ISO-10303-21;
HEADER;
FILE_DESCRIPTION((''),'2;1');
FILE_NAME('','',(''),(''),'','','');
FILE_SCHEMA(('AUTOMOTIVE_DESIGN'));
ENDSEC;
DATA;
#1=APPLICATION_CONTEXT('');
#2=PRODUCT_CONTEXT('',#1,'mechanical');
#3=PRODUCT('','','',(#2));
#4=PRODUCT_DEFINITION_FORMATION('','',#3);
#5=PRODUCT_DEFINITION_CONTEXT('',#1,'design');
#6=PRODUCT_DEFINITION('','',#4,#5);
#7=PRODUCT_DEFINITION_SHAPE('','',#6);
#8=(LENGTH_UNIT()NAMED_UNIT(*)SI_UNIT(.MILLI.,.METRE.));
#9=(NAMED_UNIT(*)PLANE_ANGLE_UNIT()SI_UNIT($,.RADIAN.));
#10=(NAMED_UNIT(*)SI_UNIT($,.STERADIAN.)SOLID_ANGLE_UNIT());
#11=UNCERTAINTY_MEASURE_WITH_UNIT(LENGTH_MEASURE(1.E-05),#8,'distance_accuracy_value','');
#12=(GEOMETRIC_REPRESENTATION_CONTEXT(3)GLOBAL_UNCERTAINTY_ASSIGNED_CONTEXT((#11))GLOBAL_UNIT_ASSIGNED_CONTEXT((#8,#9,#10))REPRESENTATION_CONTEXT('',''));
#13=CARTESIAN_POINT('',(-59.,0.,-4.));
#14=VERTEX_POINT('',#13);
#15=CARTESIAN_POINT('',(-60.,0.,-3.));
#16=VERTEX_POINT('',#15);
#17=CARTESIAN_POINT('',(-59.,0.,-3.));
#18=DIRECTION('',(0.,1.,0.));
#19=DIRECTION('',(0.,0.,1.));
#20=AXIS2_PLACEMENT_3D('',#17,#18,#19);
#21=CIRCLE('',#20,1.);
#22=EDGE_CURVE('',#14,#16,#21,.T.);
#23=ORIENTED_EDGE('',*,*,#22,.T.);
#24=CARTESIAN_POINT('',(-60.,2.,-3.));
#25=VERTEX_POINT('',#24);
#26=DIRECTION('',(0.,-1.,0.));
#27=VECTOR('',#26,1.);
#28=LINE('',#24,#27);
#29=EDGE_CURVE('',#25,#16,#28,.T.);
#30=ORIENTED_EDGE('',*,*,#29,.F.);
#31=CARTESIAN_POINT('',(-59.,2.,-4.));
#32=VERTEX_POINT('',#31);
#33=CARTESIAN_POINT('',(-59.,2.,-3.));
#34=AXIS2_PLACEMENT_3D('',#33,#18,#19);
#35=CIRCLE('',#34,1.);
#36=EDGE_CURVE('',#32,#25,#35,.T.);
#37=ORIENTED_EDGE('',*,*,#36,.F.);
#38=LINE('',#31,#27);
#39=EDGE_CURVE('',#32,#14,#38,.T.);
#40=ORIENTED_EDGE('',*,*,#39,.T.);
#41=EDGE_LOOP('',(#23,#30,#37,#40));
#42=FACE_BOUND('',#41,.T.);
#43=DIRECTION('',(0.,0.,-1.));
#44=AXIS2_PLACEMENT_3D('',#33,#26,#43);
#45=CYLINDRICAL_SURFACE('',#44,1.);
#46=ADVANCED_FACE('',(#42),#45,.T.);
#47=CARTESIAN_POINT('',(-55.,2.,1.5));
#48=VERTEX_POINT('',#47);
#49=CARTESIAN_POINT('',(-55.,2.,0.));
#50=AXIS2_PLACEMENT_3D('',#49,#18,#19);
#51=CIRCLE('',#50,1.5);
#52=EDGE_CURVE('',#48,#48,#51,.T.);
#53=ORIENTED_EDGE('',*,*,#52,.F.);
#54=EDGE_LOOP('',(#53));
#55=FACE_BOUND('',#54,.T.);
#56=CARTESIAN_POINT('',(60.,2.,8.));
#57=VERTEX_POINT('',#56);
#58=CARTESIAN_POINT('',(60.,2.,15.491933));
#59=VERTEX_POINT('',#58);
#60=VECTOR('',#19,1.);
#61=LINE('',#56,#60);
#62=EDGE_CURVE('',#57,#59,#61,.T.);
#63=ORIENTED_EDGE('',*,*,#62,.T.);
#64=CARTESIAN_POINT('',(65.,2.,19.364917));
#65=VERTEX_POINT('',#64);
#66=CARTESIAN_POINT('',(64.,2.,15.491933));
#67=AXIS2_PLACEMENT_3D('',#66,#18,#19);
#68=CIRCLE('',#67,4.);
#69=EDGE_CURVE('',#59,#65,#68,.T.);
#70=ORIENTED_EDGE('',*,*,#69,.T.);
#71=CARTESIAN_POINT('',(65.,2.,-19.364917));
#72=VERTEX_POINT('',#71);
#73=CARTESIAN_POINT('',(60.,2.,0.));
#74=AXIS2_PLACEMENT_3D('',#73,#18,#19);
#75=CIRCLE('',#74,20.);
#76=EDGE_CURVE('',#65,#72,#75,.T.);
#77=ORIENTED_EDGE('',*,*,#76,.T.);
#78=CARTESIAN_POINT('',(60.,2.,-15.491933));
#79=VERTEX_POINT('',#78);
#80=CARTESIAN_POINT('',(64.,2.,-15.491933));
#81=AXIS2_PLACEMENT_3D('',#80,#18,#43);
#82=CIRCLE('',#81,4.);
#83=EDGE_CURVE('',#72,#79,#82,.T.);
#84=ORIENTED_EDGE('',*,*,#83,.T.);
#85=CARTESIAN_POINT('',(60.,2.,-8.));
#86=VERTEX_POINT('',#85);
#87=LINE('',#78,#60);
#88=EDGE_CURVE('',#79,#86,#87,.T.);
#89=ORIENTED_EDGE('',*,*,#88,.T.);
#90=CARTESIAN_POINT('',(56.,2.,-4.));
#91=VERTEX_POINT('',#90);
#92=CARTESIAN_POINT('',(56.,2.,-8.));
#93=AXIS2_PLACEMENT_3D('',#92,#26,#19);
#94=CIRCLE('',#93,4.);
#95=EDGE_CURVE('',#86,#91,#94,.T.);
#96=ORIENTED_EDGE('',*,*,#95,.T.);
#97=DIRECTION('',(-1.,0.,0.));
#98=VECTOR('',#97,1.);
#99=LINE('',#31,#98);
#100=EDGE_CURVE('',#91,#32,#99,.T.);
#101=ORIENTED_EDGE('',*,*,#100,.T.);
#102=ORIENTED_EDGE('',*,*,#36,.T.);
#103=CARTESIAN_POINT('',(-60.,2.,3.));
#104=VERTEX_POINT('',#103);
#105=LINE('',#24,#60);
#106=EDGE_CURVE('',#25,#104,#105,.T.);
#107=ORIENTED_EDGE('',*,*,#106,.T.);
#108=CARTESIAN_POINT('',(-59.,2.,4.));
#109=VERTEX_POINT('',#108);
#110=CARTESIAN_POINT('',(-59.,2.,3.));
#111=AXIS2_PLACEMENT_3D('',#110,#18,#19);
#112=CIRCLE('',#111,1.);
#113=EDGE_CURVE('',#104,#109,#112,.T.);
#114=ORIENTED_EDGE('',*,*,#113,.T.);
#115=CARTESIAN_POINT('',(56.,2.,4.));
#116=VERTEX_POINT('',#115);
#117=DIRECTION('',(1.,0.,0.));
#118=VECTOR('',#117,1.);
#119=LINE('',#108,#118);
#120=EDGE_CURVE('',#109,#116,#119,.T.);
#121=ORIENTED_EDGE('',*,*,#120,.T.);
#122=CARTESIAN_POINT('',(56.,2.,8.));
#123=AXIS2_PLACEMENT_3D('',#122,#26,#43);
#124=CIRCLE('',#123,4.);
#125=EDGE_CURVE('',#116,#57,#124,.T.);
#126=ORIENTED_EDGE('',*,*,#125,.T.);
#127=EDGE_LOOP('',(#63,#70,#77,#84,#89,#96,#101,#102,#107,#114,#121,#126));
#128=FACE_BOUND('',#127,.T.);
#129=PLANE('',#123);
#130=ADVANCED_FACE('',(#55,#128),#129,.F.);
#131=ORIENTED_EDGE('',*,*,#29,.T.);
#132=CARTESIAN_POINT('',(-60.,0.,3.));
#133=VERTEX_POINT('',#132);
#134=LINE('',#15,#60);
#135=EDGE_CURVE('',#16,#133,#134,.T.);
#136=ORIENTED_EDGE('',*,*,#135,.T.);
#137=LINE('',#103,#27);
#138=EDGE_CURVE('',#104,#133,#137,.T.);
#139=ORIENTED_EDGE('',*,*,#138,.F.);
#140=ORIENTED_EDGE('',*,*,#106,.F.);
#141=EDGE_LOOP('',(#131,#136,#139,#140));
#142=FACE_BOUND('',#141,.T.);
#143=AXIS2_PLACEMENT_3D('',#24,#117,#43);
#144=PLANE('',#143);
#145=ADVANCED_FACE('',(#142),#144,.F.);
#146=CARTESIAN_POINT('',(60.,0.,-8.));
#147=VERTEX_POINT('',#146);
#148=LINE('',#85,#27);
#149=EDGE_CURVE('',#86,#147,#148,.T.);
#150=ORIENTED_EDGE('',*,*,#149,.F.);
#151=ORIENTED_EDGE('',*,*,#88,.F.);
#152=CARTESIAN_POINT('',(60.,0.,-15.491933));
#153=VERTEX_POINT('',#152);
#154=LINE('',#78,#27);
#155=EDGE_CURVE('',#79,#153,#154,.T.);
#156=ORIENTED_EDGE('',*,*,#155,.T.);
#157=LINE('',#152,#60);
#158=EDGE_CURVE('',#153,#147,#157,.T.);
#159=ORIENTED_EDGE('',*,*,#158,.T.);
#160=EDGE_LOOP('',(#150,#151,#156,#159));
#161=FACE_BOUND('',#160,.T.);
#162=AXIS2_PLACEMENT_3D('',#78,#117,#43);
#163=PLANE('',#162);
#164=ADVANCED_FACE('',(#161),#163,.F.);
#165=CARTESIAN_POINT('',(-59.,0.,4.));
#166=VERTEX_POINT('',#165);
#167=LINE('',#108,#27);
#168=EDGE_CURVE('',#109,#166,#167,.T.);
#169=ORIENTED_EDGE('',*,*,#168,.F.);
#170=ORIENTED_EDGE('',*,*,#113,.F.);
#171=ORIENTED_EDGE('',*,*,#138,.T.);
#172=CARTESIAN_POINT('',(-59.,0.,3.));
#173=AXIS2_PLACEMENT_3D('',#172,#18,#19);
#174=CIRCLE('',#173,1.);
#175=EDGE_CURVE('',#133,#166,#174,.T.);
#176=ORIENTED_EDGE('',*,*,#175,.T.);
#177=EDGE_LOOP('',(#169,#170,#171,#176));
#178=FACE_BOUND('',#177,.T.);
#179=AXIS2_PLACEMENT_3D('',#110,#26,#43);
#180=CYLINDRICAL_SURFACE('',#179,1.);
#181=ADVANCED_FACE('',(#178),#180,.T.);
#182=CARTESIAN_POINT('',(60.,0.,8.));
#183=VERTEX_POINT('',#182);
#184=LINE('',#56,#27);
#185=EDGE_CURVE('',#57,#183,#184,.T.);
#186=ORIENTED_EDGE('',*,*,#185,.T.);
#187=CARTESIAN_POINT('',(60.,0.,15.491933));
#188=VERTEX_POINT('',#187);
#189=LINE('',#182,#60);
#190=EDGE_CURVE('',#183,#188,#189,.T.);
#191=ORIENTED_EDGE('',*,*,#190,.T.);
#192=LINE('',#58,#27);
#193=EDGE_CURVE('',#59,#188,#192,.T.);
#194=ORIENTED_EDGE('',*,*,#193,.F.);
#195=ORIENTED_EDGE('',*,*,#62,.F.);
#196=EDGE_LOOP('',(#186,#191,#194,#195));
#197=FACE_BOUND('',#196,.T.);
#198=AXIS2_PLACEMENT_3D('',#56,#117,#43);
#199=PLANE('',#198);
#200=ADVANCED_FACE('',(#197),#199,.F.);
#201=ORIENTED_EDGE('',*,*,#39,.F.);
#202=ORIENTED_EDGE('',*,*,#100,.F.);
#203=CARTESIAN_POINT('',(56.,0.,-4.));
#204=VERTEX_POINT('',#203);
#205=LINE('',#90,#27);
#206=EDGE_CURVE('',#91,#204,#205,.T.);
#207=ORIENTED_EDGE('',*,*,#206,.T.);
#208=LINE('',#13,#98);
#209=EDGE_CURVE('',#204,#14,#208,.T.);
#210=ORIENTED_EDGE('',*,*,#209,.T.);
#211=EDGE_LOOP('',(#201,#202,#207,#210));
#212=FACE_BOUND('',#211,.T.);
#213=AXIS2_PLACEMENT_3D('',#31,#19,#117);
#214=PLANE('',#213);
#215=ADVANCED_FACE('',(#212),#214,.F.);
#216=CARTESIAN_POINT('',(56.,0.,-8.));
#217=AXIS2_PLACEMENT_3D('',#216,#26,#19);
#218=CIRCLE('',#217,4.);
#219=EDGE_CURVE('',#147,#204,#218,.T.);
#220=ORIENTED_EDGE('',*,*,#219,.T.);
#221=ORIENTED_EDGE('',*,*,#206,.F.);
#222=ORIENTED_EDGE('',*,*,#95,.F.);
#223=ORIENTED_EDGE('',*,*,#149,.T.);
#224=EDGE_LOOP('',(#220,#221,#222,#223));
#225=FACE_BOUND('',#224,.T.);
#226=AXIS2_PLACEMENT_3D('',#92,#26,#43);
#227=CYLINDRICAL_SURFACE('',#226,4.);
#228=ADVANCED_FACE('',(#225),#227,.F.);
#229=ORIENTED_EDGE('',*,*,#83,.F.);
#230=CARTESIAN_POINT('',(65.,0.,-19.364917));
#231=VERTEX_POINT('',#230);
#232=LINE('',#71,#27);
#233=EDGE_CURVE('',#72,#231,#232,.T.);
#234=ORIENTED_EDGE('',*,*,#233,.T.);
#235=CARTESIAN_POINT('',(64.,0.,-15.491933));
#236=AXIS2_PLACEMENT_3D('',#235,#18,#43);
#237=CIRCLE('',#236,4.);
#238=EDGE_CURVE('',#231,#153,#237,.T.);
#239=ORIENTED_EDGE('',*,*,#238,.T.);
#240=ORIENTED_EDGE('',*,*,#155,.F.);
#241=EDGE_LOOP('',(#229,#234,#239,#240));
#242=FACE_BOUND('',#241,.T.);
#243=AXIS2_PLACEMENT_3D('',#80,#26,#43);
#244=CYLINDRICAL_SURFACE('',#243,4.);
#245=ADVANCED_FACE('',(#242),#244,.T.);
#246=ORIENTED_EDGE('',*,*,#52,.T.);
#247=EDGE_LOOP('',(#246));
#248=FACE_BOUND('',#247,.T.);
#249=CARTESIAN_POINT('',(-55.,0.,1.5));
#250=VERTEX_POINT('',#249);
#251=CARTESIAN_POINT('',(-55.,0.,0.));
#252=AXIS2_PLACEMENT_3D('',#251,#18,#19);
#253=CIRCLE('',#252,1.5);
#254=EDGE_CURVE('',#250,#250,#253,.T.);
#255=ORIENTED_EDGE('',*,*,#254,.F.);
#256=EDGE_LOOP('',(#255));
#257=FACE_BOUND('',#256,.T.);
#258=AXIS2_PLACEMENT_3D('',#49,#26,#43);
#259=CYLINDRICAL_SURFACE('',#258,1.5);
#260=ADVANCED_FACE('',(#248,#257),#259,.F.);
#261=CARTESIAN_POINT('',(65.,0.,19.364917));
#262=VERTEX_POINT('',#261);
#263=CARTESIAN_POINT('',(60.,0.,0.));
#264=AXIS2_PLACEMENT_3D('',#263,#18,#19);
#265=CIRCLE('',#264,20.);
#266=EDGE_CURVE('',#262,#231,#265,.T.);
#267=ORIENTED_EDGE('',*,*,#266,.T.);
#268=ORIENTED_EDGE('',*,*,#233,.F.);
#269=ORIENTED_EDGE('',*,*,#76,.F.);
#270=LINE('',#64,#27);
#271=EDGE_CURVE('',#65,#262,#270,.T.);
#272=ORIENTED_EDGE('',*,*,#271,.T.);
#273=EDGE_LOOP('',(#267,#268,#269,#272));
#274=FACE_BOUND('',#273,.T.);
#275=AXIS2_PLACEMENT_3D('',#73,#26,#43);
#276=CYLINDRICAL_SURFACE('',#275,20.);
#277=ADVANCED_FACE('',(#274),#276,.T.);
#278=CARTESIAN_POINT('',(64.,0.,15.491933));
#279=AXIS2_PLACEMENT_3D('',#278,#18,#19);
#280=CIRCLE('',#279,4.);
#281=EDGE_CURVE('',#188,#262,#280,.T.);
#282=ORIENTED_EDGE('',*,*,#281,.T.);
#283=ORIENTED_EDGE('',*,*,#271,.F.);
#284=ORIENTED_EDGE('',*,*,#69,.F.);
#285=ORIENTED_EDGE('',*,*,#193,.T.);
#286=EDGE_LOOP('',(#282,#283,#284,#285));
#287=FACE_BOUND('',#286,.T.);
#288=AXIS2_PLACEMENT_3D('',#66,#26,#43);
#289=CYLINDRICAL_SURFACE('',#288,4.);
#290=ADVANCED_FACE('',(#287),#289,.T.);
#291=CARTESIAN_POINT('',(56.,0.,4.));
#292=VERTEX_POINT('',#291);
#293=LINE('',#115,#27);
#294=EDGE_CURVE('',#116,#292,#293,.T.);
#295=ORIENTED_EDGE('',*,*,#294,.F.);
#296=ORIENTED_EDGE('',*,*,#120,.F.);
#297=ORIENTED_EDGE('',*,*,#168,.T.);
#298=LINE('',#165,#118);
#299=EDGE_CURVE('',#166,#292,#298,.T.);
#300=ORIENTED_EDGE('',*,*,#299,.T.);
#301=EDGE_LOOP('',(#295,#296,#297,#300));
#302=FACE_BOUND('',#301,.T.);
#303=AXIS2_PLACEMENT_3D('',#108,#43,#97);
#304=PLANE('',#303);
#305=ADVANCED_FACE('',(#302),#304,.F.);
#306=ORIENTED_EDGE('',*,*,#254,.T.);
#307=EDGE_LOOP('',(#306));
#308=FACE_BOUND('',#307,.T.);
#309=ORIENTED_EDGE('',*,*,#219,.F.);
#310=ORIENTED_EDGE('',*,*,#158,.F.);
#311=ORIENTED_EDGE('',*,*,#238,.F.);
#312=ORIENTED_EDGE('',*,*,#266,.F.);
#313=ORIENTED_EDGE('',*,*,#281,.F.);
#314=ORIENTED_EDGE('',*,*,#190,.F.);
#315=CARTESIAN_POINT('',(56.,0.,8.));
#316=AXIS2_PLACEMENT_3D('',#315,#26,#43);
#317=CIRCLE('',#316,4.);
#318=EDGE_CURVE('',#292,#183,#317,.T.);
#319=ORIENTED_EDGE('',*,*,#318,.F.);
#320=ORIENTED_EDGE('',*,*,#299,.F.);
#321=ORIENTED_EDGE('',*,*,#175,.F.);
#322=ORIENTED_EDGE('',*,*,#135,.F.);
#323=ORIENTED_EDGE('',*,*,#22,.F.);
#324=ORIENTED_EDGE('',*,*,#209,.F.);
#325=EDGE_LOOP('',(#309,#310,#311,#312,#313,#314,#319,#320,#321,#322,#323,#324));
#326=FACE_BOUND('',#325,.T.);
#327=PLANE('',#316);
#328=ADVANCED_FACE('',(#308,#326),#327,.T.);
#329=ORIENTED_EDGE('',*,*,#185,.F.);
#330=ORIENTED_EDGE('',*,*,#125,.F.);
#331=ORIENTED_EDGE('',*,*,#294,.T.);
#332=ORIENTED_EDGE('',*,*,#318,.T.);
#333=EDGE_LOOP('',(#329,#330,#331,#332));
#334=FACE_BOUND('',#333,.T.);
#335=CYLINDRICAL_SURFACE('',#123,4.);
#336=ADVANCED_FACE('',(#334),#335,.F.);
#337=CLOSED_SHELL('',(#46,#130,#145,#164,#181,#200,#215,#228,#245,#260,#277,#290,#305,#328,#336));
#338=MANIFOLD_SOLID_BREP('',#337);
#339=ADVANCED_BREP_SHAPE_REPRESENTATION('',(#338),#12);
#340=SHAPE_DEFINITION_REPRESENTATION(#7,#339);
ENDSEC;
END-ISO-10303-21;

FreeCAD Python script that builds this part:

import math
import FreeCAD as App
import Part
import Sketcher

doc = App.newDocument("Part")
params = doc.addObject("Spreadsheet::Sheet", "Params")
for row, (alias, value) in enumerate([
    ("sketch1_diameter", "3 mm"),
    ("sketch1_radius", "4 mm"),
    ("sketch1_radius2", "1 mm"),
    ("sketch1_radius3", "20 mm"),
    ("sketch1_width", "115 mm"),
    ("pad1_length", "2 mm"),
], start=1):
    params.set(f"A{row}", alias)
    params.set(f"B{row}", "=" + value)
    params.setAlias(f"B{row}", alias)

body = doc.addObject("PartDesign::Body", "Body")

# Sketch on XZ plane
sketch1 = doc.addObject("Sketcher::SketchObject", "Sketch")
body.addObject(sketch1)
sketch1.AttachmentSupport = (doc.XZ_Plane, [""])
sketch1.MapMode = "FlatFace"
sketch1.addGeometry(Part.LineSegment(App.Vector(60, -15.5, 0), App.Vector(60, -8, 0)), False)
sketch1.addGeometry(Part.ArcOfCircle(Part.Circle(App.Vector(56, -8, 0), App.Vector(0, 0, 1), 4), math.radians(0), math.radians(90)), False)
sketch1.addGeometry(Part.LineSegment(App.Vector(56, -4, 0), App.Vector(-59, -4, 0)), False)
sketch1.addGeometry(Part.ArcOfCircle(Part.Circle(App.Vector(-59, -3, 0), App.Vector(0, 0, 1), 1), math.radians(-180), math.radians(-90)), False)
sketch1.addGeometry(Part.LineSegment(App.Vector(-60, -3, 0), App.Vector(-60, 3, 0)), False)
sketch1.addGeometry(Part.ArcOfCircle(Part.Circle(App.Vector(-59, 3, 0), App.Vector(0, 0, 1), 1), math.radians(90), math.radians(180)), False)
sketch1.addGeometry(Part.LineSegment(App.Vector(-59, 4, 0), App.Vector(56, 4, 0)), False)
sketch1.addGeometry(Part.ArcOfCircle(Part.Circle(App.Vector(56, 8, 0), App.Vector(0, 0, 1), 4), math.radians(-90), math.radians(0)), False)
sketch1.addGeometry(Part.LineSegment(App.Vector(60, 8, 0), App.Vector(60, 15.5, 0)), False)
sketch1.addGeometry(Part.ArcOfCircle(Part.Circle(App.Vector(64, 15.5, 0), App.Vector(0, 0, 1), 4), math.radians(76), math.radians(180)), False)
sketch1.addGeometry(Part.ArcOfCircle(Part.Circle(App.Vector(60, 0, 0), App.Vector(0, 0, 1), 20), math.radians(-76), math.radians(76)), False)
sketch1.addGeometry(Part.ArcOfCircle(Part.Circle(App.Vector(64, -15.5, 0), App.Vector(0, 0, 1), 4), math.radians(180), math.radians(284)), False)
sketch1.addGeometry(Part.Circle(App.Vector(-55, 0, 0), App.Vector(0, 0, 1), 1.5), False)
sketch1.addConstraint(Sketcher.Constraint("Tangent", 0, 2, 1, 1))
sketch1.addConstraint(Sketcher.Constraint("Tangent", 1, 2, 2, 1))
sketch1.addConstraint(Sketcher.Constraint("Tangent", 2, 2, 3, 2))
sketch1.addConstraint(Sketcher.Constraint("Tangent", 3, 1, 4, 1))
sketch1.addConstraint(Sketcher.Constraint("Tangent", 4, 2, 5, 2))
sketch1.addConstraint(Sketcher.Constraint("Tangent", 5, 1, 6, 1))
sketch1.addConstraint(Sketcher.Constraint("Tangent", 6, 2, 7, 1))
sketch1.addConstraint(Sketcher.Constraint("Tangent", 7, 2, 8, 1))
sketch1.addConstraint(Sketcher.Constraint("Tangent", 8, 2, 9, 2))
sketch1.addConstraint(Sketcher.Constraint("Tangent", 9, 1, 10, 2))
sketch1.addConstraint(Sketcher.Constraint("Tangent", 10, 1, 11, 2))
sketch1.addConstraint(Sketcher.Constraint("Tangent", 11, 1, 0, 1))
sketch1.addConstraint(Sketcher.Constraint("Vertical", 0))
sketch1.addConstraint(Sketcher.Constraint("Horizontal", 2))
sketch1.addConstraint(Sketcher.Constraint("Vertical", 4))
sketch1.addConstraint(Sketcher.Constraint("Horizontal", 6))
sketch1.addConstraint(Sketcher.Constraint("Vertical", 8))
sketch1.addConstraint(Sketcher.Constraint("Equal", 3, 5))
sketch1.addConstraint(Sketcher.Constraint("Equal", 1, 7))
sketch1.addConstraint(Sketcher.Constraint("Equal", 7, 9))
sketch1.addConstraint(Sketcher.Constraint("Equal", 9, 11))
sketch1.addConstraint(Sketcher.Constraint("Symmetric", 1, 3, 7, 3, -1))
sketch1.addConstraint(Sketcher.Constraint("PointOnObject", 10, 3, -1))
sketch1.addConstraint(Sketcher.Constraint("PointOnObject", 12, 3, -1))
sketch1.addConstraint(Sketcher.Constraint("Vertical", 10, 3, 0, 2))
sketch1.addConstraint(Sketcher.Constraint("Diameter", 12, 3.0))
sketch1.addConstraint(Sketcher.Constraint("Radius", 1, 4.0))
sketch1.addConstraint(Sketcher.Constraint("Radius", 3, 1.0))
sketch1.addConstraint(Sketcher.Constraint("Radius", 10, 20.0))
sketch1.addConstraint(Sketcher.Constraint("DistanceX", 2, 2, 2, 1, 115.0))
sketch1.addConstraint(Sketcher.Constraint("DistanceY", 4, 1, 4, 2, 6.0))
sketch1.addConstraint(Sketcher.Constraint("DistanceX", -1, 1, 1, 3, 56.0))
sketch1.addConstraint(Sketcher.Constraint("DistanceX", 12, 3, -1, 1, 55.0))
sketch1.setExpression("Constraints[25]", "Params.sketch1_diameter")
sketch1.setExpression("Constraints[26]", "Params.sketch1_radius")
sketch1.setExpression("Constraints[27]", "Params.sketch1_radius2")
sketch1.setExpression("Constraints[28]", "Params.sketch1_radius3")
sketch1.setExpression("Constraints[29]", "Params.sketch1_width")
pad1 = doc.addObject("PartDesign::Pad", "Pad")
body.addObject(pad1)
pad1.Profile = sketch1
pad1.setExpression("Length", "Params.pad1_length")
pad1.Reversed = True

doc.recompute()
